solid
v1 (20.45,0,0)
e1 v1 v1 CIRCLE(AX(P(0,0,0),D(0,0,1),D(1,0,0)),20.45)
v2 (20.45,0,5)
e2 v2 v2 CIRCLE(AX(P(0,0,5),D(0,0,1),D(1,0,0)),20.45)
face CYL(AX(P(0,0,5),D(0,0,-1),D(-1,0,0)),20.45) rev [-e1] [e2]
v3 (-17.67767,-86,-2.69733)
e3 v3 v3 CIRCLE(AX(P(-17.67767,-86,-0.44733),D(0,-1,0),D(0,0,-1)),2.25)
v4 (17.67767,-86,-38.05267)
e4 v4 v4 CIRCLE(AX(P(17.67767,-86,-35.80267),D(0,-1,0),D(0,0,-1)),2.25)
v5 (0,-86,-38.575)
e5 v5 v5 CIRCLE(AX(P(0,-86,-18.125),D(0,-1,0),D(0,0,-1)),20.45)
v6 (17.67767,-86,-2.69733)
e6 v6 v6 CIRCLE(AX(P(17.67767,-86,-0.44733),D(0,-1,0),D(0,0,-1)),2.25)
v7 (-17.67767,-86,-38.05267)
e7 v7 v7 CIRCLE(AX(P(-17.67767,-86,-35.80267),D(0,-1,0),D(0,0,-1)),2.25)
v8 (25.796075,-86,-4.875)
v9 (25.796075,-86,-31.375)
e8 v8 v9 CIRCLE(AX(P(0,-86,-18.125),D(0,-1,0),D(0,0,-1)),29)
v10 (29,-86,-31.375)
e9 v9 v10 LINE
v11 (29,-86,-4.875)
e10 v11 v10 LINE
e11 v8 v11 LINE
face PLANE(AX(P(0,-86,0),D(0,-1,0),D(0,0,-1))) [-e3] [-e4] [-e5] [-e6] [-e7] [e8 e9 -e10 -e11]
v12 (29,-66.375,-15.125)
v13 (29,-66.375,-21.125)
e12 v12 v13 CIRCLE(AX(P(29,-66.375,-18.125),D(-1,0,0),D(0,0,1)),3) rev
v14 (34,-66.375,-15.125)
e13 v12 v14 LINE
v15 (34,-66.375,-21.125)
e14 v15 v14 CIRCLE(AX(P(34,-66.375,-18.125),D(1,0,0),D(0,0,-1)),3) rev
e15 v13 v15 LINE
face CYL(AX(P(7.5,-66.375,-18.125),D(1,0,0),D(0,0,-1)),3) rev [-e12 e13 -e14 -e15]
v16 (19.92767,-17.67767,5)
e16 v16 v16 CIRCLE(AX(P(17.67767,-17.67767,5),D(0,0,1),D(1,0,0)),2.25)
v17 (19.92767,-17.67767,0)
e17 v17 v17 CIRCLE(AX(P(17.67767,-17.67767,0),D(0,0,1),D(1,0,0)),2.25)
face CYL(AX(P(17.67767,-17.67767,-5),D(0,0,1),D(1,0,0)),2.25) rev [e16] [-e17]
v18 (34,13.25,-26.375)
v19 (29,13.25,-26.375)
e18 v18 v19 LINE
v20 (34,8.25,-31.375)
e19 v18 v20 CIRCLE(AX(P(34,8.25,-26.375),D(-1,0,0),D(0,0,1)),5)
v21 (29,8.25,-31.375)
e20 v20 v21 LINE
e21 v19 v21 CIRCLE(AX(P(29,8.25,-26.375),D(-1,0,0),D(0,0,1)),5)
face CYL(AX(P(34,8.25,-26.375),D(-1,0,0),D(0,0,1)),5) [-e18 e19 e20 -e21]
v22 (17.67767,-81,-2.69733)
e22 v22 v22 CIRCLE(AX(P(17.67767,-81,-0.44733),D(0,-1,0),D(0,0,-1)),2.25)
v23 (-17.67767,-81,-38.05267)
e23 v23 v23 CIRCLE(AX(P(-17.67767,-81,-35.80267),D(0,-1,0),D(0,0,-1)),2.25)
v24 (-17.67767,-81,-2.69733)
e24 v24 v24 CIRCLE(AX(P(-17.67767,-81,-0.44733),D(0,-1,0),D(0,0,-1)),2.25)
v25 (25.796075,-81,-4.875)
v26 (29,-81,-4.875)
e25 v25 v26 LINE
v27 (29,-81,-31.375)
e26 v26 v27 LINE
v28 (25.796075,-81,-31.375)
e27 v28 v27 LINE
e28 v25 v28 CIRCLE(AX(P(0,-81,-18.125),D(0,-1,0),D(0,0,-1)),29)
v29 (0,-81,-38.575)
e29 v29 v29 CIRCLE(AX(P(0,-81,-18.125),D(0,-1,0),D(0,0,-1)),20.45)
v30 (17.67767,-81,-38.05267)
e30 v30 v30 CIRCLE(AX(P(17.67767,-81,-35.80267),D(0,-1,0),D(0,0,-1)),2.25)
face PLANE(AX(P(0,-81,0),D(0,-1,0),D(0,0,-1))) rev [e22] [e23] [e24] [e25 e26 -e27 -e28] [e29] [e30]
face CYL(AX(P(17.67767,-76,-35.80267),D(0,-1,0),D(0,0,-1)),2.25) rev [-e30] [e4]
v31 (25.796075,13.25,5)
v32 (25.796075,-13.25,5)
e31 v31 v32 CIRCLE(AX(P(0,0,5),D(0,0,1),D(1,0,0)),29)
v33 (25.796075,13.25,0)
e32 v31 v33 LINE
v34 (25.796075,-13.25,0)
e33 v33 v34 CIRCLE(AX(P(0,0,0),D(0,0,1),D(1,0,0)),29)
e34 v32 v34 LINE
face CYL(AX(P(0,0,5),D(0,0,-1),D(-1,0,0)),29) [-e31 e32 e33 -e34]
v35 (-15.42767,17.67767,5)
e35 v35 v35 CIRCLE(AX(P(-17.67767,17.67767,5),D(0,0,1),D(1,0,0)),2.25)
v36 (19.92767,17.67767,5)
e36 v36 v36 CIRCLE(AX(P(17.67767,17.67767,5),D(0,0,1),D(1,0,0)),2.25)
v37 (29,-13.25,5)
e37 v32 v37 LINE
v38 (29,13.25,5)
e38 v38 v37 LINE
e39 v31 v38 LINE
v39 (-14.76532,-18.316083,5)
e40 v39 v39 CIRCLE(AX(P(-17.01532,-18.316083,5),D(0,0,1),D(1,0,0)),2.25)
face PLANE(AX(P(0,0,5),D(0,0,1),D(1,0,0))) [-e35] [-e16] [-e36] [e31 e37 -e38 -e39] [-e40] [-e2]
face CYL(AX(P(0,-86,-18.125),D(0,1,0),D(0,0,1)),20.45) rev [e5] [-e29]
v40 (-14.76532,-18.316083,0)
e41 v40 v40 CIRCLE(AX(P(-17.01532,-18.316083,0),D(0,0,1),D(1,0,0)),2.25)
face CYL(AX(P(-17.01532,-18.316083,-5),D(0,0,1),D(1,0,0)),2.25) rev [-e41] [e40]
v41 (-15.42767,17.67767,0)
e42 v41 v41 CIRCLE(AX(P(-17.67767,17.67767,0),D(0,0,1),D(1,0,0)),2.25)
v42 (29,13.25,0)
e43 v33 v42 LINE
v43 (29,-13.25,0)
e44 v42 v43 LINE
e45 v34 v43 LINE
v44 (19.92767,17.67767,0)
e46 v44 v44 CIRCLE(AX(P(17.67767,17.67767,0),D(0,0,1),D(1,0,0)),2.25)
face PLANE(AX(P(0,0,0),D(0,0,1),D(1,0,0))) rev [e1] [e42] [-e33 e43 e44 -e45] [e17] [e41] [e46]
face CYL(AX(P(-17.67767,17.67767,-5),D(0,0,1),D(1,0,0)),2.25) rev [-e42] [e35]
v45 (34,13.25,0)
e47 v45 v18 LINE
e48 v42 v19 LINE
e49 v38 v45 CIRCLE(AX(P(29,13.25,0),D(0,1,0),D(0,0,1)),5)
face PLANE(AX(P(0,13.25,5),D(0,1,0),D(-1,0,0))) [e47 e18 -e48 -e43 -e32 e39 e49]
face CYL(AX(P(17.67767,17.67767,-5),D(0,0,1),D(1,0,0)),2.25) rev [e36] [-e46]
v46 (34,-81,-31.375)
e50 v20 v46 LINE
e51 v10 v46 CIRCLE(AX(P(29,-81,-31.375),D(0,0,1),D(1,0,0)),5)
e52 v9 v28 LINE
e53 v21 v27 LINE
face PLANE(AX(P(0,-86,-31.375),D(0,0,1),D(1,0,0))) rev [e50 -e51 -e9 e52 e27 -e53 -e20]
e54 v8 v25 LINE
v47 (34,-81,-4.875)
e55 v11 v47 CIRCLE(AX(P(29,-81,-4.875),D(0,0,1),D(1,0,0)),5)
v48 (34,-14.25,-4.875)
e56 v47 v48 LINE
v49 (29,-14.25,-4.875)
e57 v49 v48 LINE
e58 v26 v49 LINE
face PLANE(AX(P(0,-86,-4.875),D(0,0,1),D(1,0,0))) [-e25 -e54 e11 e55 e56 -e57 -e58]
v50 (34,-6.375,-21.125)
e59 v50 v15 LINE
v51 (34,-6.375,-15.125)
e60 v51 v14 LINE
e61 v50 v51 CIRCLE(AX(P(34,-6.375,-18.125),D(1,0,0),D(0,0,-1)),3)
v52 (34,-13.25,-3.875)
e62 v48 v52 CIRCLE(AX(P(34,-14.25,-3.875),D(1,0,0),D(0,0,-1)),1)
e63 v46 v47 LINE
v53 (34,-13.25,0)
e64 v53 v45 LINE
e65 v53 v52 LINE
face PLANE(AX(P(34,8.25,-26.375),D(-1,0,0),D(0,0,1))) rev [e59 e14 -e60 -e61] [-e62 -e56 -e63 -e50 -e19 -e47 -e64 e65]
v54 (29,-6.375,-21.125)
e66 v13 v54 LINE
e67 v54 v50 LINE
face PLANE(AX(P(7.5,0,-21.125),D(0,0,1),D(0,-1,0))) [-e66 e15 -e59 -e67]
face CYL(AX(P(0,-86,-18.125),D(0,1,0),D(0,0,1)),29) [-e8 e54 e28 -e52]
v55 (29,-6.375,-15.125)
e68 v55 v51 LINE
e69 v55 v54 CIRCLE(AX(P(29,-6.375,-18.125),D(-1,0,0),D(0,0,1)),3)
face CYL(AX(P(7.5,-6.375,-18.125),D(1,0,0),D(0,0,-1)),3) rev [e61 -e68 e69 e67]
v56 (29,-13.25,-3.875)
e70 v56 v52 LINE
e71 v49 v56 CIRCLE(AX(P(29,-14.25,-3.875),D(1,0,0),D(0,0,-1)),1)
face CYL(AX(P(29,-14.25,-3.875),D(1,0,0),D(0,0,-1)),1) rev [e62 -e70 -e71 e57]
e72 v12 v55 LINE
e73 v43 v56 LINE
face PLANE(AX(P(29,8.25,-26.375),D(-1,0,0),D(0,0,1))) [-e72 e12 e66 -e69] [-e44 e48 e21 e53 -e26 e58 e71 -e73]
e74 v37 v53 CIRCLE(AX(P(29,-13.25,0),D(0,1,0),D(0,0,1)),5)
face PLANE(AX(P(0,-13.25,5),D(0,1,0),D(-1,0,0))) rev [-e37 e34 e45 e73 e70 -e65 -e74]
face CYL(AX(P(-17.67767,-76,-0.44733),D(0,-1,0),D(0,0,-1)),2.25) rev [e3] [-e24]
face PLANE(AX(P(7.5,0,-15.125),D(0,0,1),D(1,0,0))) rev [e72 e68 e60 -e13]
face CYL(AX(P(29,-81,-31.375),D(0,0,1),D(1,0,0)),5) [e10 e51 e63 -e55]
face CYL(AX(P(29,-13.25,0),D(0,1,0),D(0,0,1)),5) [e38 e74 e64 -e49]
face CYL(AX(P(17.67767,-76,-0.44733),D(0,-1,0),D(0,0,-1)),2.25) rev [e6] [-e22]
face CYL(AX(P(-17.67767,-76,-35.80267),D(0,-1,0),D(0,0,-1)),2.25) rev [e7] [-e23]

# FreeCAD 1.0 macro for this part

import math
import FreeCAD as App
import Part
import Sketcher
from FreeCAD import Vector

doc = App.newDocument("Part")
params = doc.addObject("Spreadsheet::Sheet", "Params")
for row, (alias, value) in enumerate([
    ("sketch1_radius", "29 mm"),
    ("sketch1_diameter", "40.9 mm"),
    ("sketch1_height", "26.5 mm"),
    ("pad1_length", "5 mm"),
    ("sketch2_radius", "5 mm"),
    ("sketch2_width", "94.25 mm"),
    ("pad2_length", "5 mm"),
    ("sketch3_radius", "1 mm"),
    ("sketch3_width", "67.75 mm"),
    ("pocket1_length", "5 mm"),
    ("sketch4_radius", "29 mm"),
    ("sketch4_diameter", "40.9 mm"),
    ("sketch4_height", "26.5 mm"),
    ("pad3_length", "5 mm"),
    ("sketch5_radius", "5 mm"),
    ("pad4_length", "26.5 mm"),
    ("sketch6_radius", "5 mm"),
    ("pad5_length", "26.5 mm"),
    ("sketch7_radius", "3 mm"),
    ("sketch7_width", "60 mm"),
    ("pocket2_length", "26.5 mm"),
    ("sketch8_diameter", "4.5 mm"),
    ("pocket3_length", "10 mm"),
    ("sketch9_diameter", "4.5 mm"),
    ("pocket4_length", "10 mm"),
], start=1):
    params.set(f"A{row}", alias)
    params.set(f"B{row}", "=" + value)
    params.setAlias(f"B{row}", alias)

body = doc.addObject("PartDesign::Body", "Body")

# Sketch on XY plane
sketch1 = doc.addObject("Sketcher::SketchObject", "Sketch")
body.addObject(sketch1)
sketch1.AttachmentSupport = (doc.XY_Plane, [""])
sketch1.MapMode = "FlatFace"
sketch1.addGeometry(Part.LineSegment(Vector(29, 13.2, 0), Vector(25.8, 13.2, 0)), False)
sketch1.addGeometry(Part.ArcOfCircle(Part.Circle(Vector(0, 0, 0), Vector(0, 0, 1), 29), math.radians(27), math.radians(333)), False)
sketch1.addGeometry(Part.LineSegment(Vector(25.8, -13.2, 0), Vector(29, -13.2, 0)), False)
sketch1.addGeometry(Part.LineSegment(Vector(29, -13.2, 0), Vector(29, 13.2, 0)), False)
sketch1.addGeometry(Part.Circle(Vector(0, 0, 0), Vector(0, 0, 1), 20.4), False)
sketch1.addConstraint(Sketcher.Constraint("Coincident", 0, 2, 1, 1))
sketch1.addConstraint(Sketcher.Constraint("Coincident", 1, 2, 2, 1))
sketch1.addConstraint(Sketcher.Constraint("Coincident", 2, 2, 3, 1))
sketch1.addConstraint(Sketcher.Constraint("Coincident", 3, 2, 0, 1))
sketch1.addConstraint(Sketcher.Constraint("Horizontal", 0))
sketch1.addConstraint(Sketcher.Constraint("Horizontal", 2))
sketch1.addConstraint(Sketcher.Constraint("Vertical", 3))
sketch1.addConstraint(Sketcher.Constraint("Coincident", 1, 3, -1, 1))
sketch1.addConstraint(Sketcher.Constraint("Coincident", 4, 3, -1, 1))
sketch1.addConstraint(Sketcher.Constraint("Vertical", 0, 2, 1, 2))
sketch1.addConstraint(Sketcher.Constraint("Radius", 1, 29.0))
sketch1.addConstraint(Sketcher.Constraint("Diameter", 4, 40.9))
sketch1.addConstraint(Sketcher.Constraint("DistanceY", 3, 1, 3, 2, 26.5))
sketch1.addConstraint(Sketcher.Constraint("DistanceX", -1, 1, 2, 2, 29.0))
sketch1.setExpression("Constraints[10]", "Params.sketch1_radius")
sketch1.setExpression("Constraints[11]", "Params.sketch1_diameter")
sketch1.setExpression("Constraints[12]", "Params.sketch1_height")
pad1 = doc.addObject("PartDesign::Pad", "Pad")
body.addObject(pad1)
pad1.Profile = sketch1
pad1.setExpression("Length", "Params.pad1_length")
body2 = doc.addObject("PartDesign::Body", "Body001")

# Sketch on YZ plane
sketch2 = doc.addObject("Sketcher::SketchObject", "Sketch001")
body2.addObject(sketch2)
sketch2.AttachmentSupport = (doc.getObject("YZ_Plane001"), [""])
sketch2.MapMode = "FlatFace"
sketch2.AttachmentOffset = App.Placement(Vector(0, 0, 29), App.Rotation())
sketch2.addGeometry(Part.LineSegment(Vector(13, -26, 0), Vector(13, 0, 0)), False)
sketch2.addGeometry(Part.LineSegment(Vector(13, 0, 0), Vector(-81, 0, 0)), False)
sketch2.addGeometry(Part.LineSegment(Vector(-81, 0, 0), Vector(-81, -31, 0)), False)
sketch2.addGeometry(Part.LineSegment(Vector(-81, -31, 0), Vector(8, -31, 0)), False)
sketch2.addGeometry(Part.ArcOfCircle(Part.Circle(Vector(8, -26, 0), Vector(0, 0, 1), 5), math.radians(-90), math.radians(0)), False)
sketch2.addConstraint(Sketcher.Constraint("Coincident", 0, 2, 1, 1))
sketch2.addConstraint(Sketcher.Constraint("Coincident", 1, 2, 2, 1))
sketch2.addConstraint(Sketcher.Constraint("Coincident", 2, 2, 3, 1))
sketch2.addConstraint(Sketcher.Constraint("Tangent", 3, 2, 4, 1))
sketch2.addConstraint(Sketcher.Constraint("Tangent", 4, 2, 0, 1))
sketch2.addConstraint(Sketcher.Constraint("Vertical", 0))
sketch2.addConstraint(Sketcher.Constraint("Horizontal", 1))
sketch2.addConstraint(Sketcher.Constraint("Vertical", 2))
sketch2.addConstraint(Sketcher.Constraint("Horizontal", 3))
sketch2.addConstraint(Sketcher.Constraint("PointOnObject", 0, 2, -1))
sketch2.addConstraint(Sketcher.Constraint("Radius", 4, 5.0))
sketch2.addConstraint(Sketcher.Constraint("DistanceX", 1, 2, -1, 1, 81.0))
sketch2.addConstraint(Sketcher.Constraint("DistanceX", 1, 2, 1, 1, 94.25))
sketch2.addConstraint(Sketcher.Constraint("DistanceY", 0, 1, 0, 2, 26.375))
sketch2.setExpression("Constraints[10]", "Params.sketch2_radius")
sketch2.setExpression("Constraints[12]", "Params.sketch2_width")
pad2 = doc.addObject("PartDesign::Pad", "Pad001")
body2.addObject(pad2)
pad2.Profile = sketch2
pad2.setExpression("Length", "Params.pad2_length")

# Sketch on YZ plane
sketch3 = doc.addObject("Sketcher::SketchObject", "Sketch002")
body2.addObject(sketch3)
sketch3.AttachmentSupport = (doc.getObject("YZ_Plane001"), [""])
sketch3.MapMode = "FlatFace"
sketch3.AttachmentOffset = App.Placement(Vector(0, 0, 34), App.Rotation())
sketch3.addGeometry(Part.LineSegment(Vector(-13.2, -3.9, 0), Vector(-13.2, 0, 0)), False)
sketch3.addGeometry(Part.LineSegment(Vector(-13.2, 0, 0), Vector(-81, 0, 0)), False)
sketch3.addGeometry(Part.LineSegment(Vector(-81, 0, 0), Vector(-81, -4.9, 0)), False)
sketch3.addGeometry(Part.LineSegment(Vector(-81, -4.9, 0), Vector(-14.2, -4.9, 0)), False)
sketch3.addGeometry(Part.ArcOfCircle(Part.Circle(Vector(-14.3, -3.9, 0), Vector(0, 0, 1), 1), math.radians(-90), math.radians(0)), False)
sketch3.addConstraint(Sketcher.Constraint("Coincident", 0, 2, 1, 1))
sketch3.addConstraint(Sketcher.Constraint("Coincident", 1, 2, 2, 1))
sketch3.addConstraint(Sketcher.Constraint("Coincident", 2, 2, 3, 1))
sketch3.addConstraint(Sketcher.Constraint("Tangent", 3, 2, 4, 1))
sketch3.addConstraint(Sketcher.Constraint("Tangent", 4, 2, 0, 1))
sketch3.addConstraint(Sketcher.Constraint("Vertical", 0))
sketch3.addConstraint(Sketcher.Constraint("Horizontal", 1))
sketch3.addConstraint(Sketcher.Constraint("Vertical", 2))
sketch3.addConstraint(Sketcher.Constraint("Horizontal", 3))
sketch3.addConstraint(Sketcher.Constraint("PointOnObject", 0, 2, -1))
sketch3.addConstraint(Sketcher.Constraint("Radius", 4, 1.0))
sketch3.addConstraint(Sketcher.Constraint("DistanceX", 1, 2, -1, 1, 81.0))
sketch3.addConstraint(Sketcher.Constraint("DistanceX", 1, 2, 1, 1, 67.75))
sketch3.addConstraint(Sketcher.Constraint("DistanceY", 0, 1, 0, 2, 3.875))
sketch3.setExpression("Constraints[10]", "Params.sketch3_radius")
sketch3.setExpression("Constraints[12]", "Params.sketch3_width")
pocket1 = doc.addObject("PartDesign::Pocket", "Pocket")
body2.addObject(pocket1)
pocket1.Profile = sketch3
pocket1.setExpression("Length", "Params.pocket1_length")
body3 = doc.addObject("PartDesign::Body", "Body002")

# Sketch on XZ plane
sketch4 = doc.addObject("Sketcher::SketchObject", "Sketch003")
body3.addObject(sketch4)
sketch4.AttachmentSupport = (doc.getObject("XZ_Plane002"), [""])
sketch4.MapMode = "FlatFace"
sketch4.AttachmentOffset = App.Placement(Vector(0, 0, 81), App.Rotation())
sketch4.addGeometry(Part.LineSegment(Vector(29, -4.9, 0), Vector(25.8, -4.9, 0)), False)
sketch4.addGeometry(Part.ArcOfCircle(Part.Circle(Vector(0, -18.1, 0), Vector(0, 0, 1), 29), math.radians(27), math.radians(333)), False)
sketch4.addGeometry(Part.LineSegment(Vector(25.8, -31.4, 0), Vector(29, -31.4, 0)), False)
sketch4.addGeometry(Part.LineSegment(Vector(29, -31.4, 0), Vector(29, -4.9, 0)), False)
sketch4.addGeometry(Part.Circle(Vector(0, -18.1, 0), Vector(0, 0, 1), 20.4), False)
sketch4.addConstraint(Sketcher.Constraint("Coincident", 0, 2, 1, 1))
sketch4.addConstraint(Sketcher.Constraint("Coincident", 1, 2, 2, 1))
sketch4.addConstraint(Sketcher.Constraint("Coincident", 2, 2, 3, 1))
sketch4.addConstraint(Sketcher.Constraint("Coincident", 3, 2, 0, 1))
sketch4.addConstraint(Sketcher.Constraint("Horizontal", 0))
sketch4.addConstraint(Sketcher.Constraint("Horizontal", 2))
sketch4.addConstraint(Sketcher.Constraint("Vertical", 3))
sketch4.addConstraint(Sketcher.Constraint("Coincident", 4, 3, 1, 3))
sketch4.addConstraint(Sketcher.Constraint("PointOnObject", 1, 3, -2))
sketch4.addConstraint(Sketcher.Constraint("Vertical", 0, 2, 1, 2))
sketch4.addConstraint(Sketcher.Constraint("Radius", 1, 29.0))
sketch4.addConstraint(Sketcher.Constraint("Diameter", 4, 40.9))
sketch4.addConstraint(Sketcher.Constraint("DistanceY", 3, 1, 3, 2, 26.5))
sketch4.addConstraint(Sketcher.Constraint("DistanceX", -1, 1, 2, 2, 29.0))
sketch4.addConstraint(Sketcher.Constraint("DistanceY", 1, 3, -1, 1, 18.125))
sketch4.setExpression("Constraints[10]", "Params.sketch4_radius")
sketch4.setExpression("Constraints[11]", "Params.sketch4_diameter")
sketch4.setExpression("Constraints[12]", "Params.sketch4_height")
pad3 = doc.addObject("PartDesign::Pad", "Pad002")
body3.addObject(pad3)
pad3.Profile = sketch4
pad3.setExpression("Length", "Params.pad3_length")
body.AllowCompound = True
doc.recompute()

boolean = doc.addObject("PartDesign::Boolean", "Boolean")
body.addObject(boolean)
boolean.Type = "Fuse"
boolean.addObjects([body2])

# Sketch on XZ plane
sketch5 = doc.addObject("Sketcher::SketchObject", "Sketch004")
body.addObject(sketch5)
sketch5.AttachmentSupport = (doc.XZ_Plane, [""])
sketch5.MapMode = "FlatFace"
sketch5.AttachmentOffset = App.Placement(Vector(0, 0, -13.25), App.Rotation())
sketch5.addGeometry(Part.LineSegment(Vector(29, 0, 0), Vector(29, 5, 0)), False)
sketch5.addGeometry(Part.ArcOfCircle(Part.Circle(Vector(29, 0, 0), Vector(0, 0, 1), 5), math.radians(0), math.radians(90)), False)
sketch5.addGeometry(Part.LineSegment(Vector(34, 0, 0), Vector(29, 0, 0)), False)
sketch5.addConstraint(Sketcher.Constraint("Coincident", 0, 2, 1, 2))
sketch5.addConstraint(Sketcher.Constraint("Coincident", 1, 1, 2, 1))
sketch5.addConstraint(Sketcher.Constraint("Coincident", 2, 2, 0, 1))
sketch5.addConstraint(Sketcher.Constraint("Vertical", 0))
sketch5.addConstraint(Sketcher.Constraint("Horizontal", 2))
sketch5.addConstraint(Sketcher.Constraint("Coincident", 2, 2, 1, 3))
sketch5.addConstraint(Sketcher.Constraint("PointOnObject", 1, 3, -1))
sketch5.addConstraint(Sketcher.Constraint("Radius", 1, 5.0))
sketch5.addConstraint(Sketcher.Constraint("DistanceX", -1, 1, 1, 3, 29.0))
sketch5.setExpression("Constraints[7]", "Params.sketch5_radius")
pad4 = doc.addObject("PartDesign::Pad", "Pad003")
body.addObject(pad4)
pad4.Profile = sketch5
pad4.setExpression("Length", "Params.pad4_length")
doc.recompute()

boolean2 = doc.addObject("PartDesign::Boolean", "Boolean001")
body.addObject(boolean2)
boolean2.Type = "Fuse"
boolean2.addObjects([body3])

# Sketch on XY plane
sketch6 = doc.addObject("Sketcher::SketchObject", "Sketch005")
body.addObject(sketch6)
sketch6.AttachmentSupport = (doc.XY_Plane, [""])
sketch6.MapMode = "FlatFace"
sketch6.AttachmentOffset = App.Placement(Vector(0, 0, -4.875), App.Rotation())
sketch6.addGeometry(Part.ArcOfCircle(Part.Circle(Vector(29, -81, 0), Vector(0, 0, 1), 5), math.radians(-90), math.radians(0)), False)
sketch6.addGeometry(Part.LineSegment(Vector(34, -81, 0), Vector(29, -81, 0)), False)
sketch6.addGeometry(Part.LineSegment(Vector(29, -81, 0), Vector(29, -86, 0)), False)
sketch6.addConstraint(Sketcher.Constraint("Coincident", 0, 2, 1, 1))
sketch6.addConstraint(Sketcher.Constraint("Coincident", 1, 2, 2, 1))
sketch6.addConstraint(Sketcher.Constraint("Coincident", 2, 2, 0, 1))
sketch6.addConstraint(Sketcher.Constraint("Horizontal", 1))
sketch6.addConstraint(Sketcher.Constraint("Vertical", 2))
sketch6.addConstraint(Sketcher.Constraint("Coincident", 1, 2, 0, 3))
sketch6.addConstraint(Sketcher.Constraint("Radius", 0, 5.0))
sketch6.addConstraint(Sketcher.Constraint("DistanceX", -1, 1, 0, 3, 29.0))
sketch6.addConstraint(Sketcher.Constraint("DistanceY", 0, 3, -1, 1, 81.0))
sketch6.setExpression("Constraints[6]", "Params.sketch6_radius")
pad5 = doc.addObject("PartDesign::Pad", "Pad004")
body.addObject(pad5)
pad5.Profile = sketch6
pad5.setExpression("Length", "Params.pad5_length")
pad5.Reversed = True

# Sketch on YZ plane
sketch7 = doc.addObject("Sketcher::SketchObject", "Sketch006")
body.addObject(sketch7)
sketch7.AttachmentSupport = (doc.YZ_Plane, [""])
sketch7.MapMode = "FlatFace"
sketch7.AttachmentOffset = App.Placement(Vector(0, 0, 34), App.Rotation())
sketch7.addGeometry(Part.LineSegment(Vector(-6.4, -15.1, 0), Vector(-66.4, -15.1, 0)), False)
sketch7.addGeometry(Part.ArcOfCircle(Part.Circle(Vector(-66.4, -18.1, 0), Vector(0, 0, 1), 3), math.radians(90), math.radians(180)), False)
sketch7.addGeometry(Part.ArcOfCircle(Part.Circle(Vector(-66.4, -18.1, 0), Vector(0, 0, 1), 3), math.radians(180), math.radians(270)), False)
sketch7.addGeometry(Part.LineSegment(Vector(-66.4, -21.1, 0), Vector(-6.4, -21.1, 0)), False)
sketch7.addGeometry(Part.ArcOfCircle(Part.Circle(Vector(-6.4, -18.1, 0), Vector(0, 0, 1), 3), math.radians(-90), math.radians(90)), False)
sketch7.addConstraint(Sketcher.Constraint("Tangent", 0, 2, 1, 1))
sketch7.addConstraint(Sketcher.Constraint("Tangent", 1, 2, 2, 1))
sketch7.addConstraint(Sketcher.Constraint("Tangent", 2, 2, 3, 1))
sketch7.addConstraint(Sketcher.Constraint("Tangent", 3, 2, 4, 1))
sketch7.addConstraint(Sketcher.Constraint("Tangent", 4, 2, 0, 1))
sketch7.addConstraint(Sketcher.Constraint("Horizontal", 0))
sketch7.addConstraint(Sketcher.Constraint("Horizontal", 3))
sketch7.addConstraint(Sketcher.Constraint("Equal", 1, 2))
sketch7.addConstraint(Sketcher.Constraint("Horizontal", 4, 3, 1, 2))
sketch7.addConstraint(Sketcher.Constraint("Radius", 1, 3.0))
sketch7.addConstraint(Sketcher.Constraint("DistanceX", 0, 2, 0, 1, 60.0))
sketch7.addConstraint(Sketcher.Constraint("DistanceX", 1, 3, -1, 1, 66.375))
sketch7.addConstraint(Sketcher.Constraint("DistanceY", 1, 3, -1, 1, 18.125))
sketch7.setExpression("Constraints[9]", "Params.sketch7_radius")
sketch7.setExpression("Constraints[10]", "Params.sketch7_width")
pocket2 = doc.addObject("PartDesign::Pocket", "Pocket001")
body.addObject(pocket2)
pocket2.Profile = sketch7
pocket2.setExpression("Length", "Params.pocket2_length")

# Sketch on XY plane
sketch8 = doc.addObject("Sketcher::SketchObject", "Sketch007")
body.addObject(sketch8)
sketch8.AttachmentSupport = (doc.XY_Plane, [""])
sketch8.MapMode = "FlatFace"
sketch8.AttachmentOffset = App.Placement(Vector(0, 0, 5), App.Rotation())
sketch8.addGeometry(Part.Circle(Vector(17.7, 17.7, 0), Vector(0, 0, 1), 2.2), False)
sketch8.addGeometry(Part.Circle(Vector(17.7, -17.7, 0), Vector(0, 0, 1), 2.2), False)
sketch8.addGeometry(Part.Circle(Vector(-17.7, 17.7, 0), Vector(0, 0, 1), 2.2), False)
sketch8.addGeometry(Part.Circle(Vector(-17, -18.3, 0), Vector(0, 0, 1), 2.2), False)
sketch8.addConstraint(Sketcher.Constraint("Equal", 0, 1))
sketch8.addConstraint(Sketcher.Constraint("Equal", 1, 2))
sketch8.addConstraint(Sketcher.Constraint("Equal", 2, 3))
sketch8.addConstraint(Sketcher.Constraint("Symmetric", 1, 3, 2, 3, -1, 1))
sketch8.addConstraint(Sketcher.Constraint("Symmetric", 0, 3, 2, 3, -2))
sketch8.addConstraint(Sketcher.Constraint("Diameter", 0, 4.5))
sketch8.addConstraint(Sketcher.Constraint("DistanceX", -1, 1, 0, 3, 17.67767))
sketch8.addConstraint(Sketcher.Constraint("DistanceY", -1, 1, 0, 3, 17.67767))
sketch8.addConstraint(Sketcher.Constraint("DistanceX", 3, 3, -1, 1, 17.01532))
sketch8.addConstraint(Sketcher.Constraint("DistanceY", 3, 3, -1, 1, 18.316083))
sketch8.setExpression("Constraints[5]", "Params.sketch8_diameter")
pocket3 = doc.addObject("PartDesign::Pocket", "Pocket002")
body.addObject(pocket3)
pocket3.Profile = sketch8
pocket3.setExpression("Length", "Params.pocket3_length")

# Sketch on XZ plane
sketch9 = doc.addObject("Sketcher::SketchObject", "Sketch008")
body.addObject(sketch9)
sketch9.AttachmentSupport = (doc.XZ_Plane, [""])
sketch9.MapMode = "FlatFace"
sketch9.AttachmentOffset = App.Placement(Vector(0, 0, 86), App.Rotation())
sketch9.addGeometry(Part.Circle(Vector(-17.7, -0.4, 0), Vector(0, 0, 1), 2.2), False)
sketch9.addGeometry(Part.Circle(Vector(17.7, -0.4, 0), Vector(0, 0, 1), 2.2), False)
sketch9.addGeometry(Part.Circle(Vector(17.7, -35.8, 0), Vector(0, 0, 1), 2.2), False)
sketch9.addGeometry(Part.Circle(Vector(-17.7, -35.8, 0), Vector(0, 0, 1), 2.2), False)
sketch9.addConstraint(Sketcher.Constraint("Equal", 0, 1))
sketch9.addConstraint(Sketcher.Constraint("Equal", 1, 2))
sketch9.addConstraint(Sketcher.Constraint("Equal", 2, 3))
sketch9.addConstraint(Sketcher.Constraint("Symmetric", 0, 3, 1, 3, -2))
sketch9.addConstraint(Sketcher.Constraint("Symmetric", 2, 3, 3, 3, -2))
sketch9.addConstraint(Sketcher.Constraint("Vertical", 1, 3, 2, 3))
sketch9.addConstraint(Sketcher.Constraint("Diameter", 0, 4.5))
sketch9.addConstraint(Sketcher.Constraint("DistanceX", 0, 3, -1, 1, 17.67767))
sketch9.addConstraint(Sketcher.Constraint("DistanceY", 0, 3, -1, 1, 0.44733))
sketch9.addConstraint(Sketcher.Constraint("DistanceY", 2, 3, -1, 1, 35.80267))
sketch9.setExpression("Constraints[6]", "Params.sketch9_diameter")
pocket4 = doc.addObject("PartDesign::Pocket", "Pocket003")
body.addObject(pocket4)
pocket4.Profile = sketch9
pocket4.setExpression("Length", "Params.pocket4_length")

doc.recompute()
